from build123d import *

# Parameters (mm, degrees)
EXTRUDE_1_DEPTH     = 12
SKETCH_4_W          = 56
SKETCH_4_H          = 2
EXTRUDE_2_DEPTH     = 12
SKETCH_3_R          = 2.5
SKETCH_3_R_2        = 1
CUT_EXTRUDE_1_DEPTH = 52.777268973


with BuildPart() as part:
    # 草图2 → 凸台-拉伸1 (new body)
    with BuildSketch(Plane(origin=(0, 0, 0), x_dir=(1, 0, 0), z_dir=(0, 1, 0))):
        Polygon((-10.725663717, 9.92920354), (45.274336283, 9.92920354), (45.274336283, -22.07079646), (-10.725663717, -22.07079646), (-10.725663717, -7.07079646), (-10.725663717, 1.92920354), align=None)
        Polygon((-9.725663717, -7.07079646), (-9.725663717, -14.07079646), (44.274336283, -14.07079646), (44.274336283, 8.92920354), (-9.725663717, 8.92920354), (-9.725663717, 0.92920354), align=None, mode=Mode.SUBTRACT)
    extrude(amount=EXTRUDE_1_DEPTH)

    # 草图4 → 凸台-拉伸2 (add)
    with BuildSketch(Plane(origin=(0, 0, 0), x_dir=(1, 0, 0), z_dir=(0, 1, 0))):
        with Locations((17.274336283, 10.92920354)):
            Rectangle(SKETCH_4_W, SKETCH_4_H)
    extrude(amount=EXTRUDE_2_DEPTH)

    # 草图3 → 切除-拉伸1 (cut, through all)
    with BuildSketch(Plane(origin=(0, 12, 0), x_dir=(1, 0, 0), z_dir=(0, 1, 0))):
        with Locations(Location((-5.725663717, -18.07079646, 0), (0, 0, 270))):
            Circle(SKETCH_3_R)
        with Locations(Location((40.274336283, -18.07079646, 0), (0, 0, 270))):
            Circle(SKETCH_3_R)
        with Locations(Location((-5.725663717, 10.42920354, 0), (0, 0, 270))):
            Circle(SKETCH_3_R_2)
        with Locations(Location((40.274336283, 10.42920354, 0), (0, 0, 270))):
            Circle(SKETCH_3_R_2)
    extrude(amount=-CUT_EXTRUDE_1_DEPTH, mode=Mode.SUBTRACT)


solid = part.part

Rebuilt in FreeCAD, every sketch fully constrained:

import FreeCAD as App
import Part
import Sketcher

V = App.Vector

doc = App.newDocument("Part")
body = doc.addObject("PartDesign::Body", "Body")

sketch1 = body.newObject("Sketcher::SketchObject", "Sketch")
sketch1.AttachmentSupport = (doc.getObject("XZ_Plane"), [""])
sketch1.MapMode = "FlatFace"
sketch1.addGeometry(Part.LineSegment(V(45, -10, 0), V(-11, -10, 0)), False)
sketch1.addGeometry(Part.LineSegment(V(-11, -10, 0), V(-11, 22, 0)), False)
sketch1.addGeometry(Part.LineSegment(V(-11, 22, 0), V(45, 22, 0)), False)
sketch1.addGeometry(Part.LineSegment(V(45, 22, 0), V(45, -10, 0)), False)
sketch1.addGeometry(Part.LineSegment(V(-10, -9, 0), V(44, -9, 0)), False)
sketch1.addGeometry(Part.LineSegment(V(44, -9, 0), V(44, 14, 0)), False)
sketch1.addGeometry(Part.LineSegment(V(44, 14, 0), V(-10, 14, 0)), False)
sketch1.addGeometry(Part.LineSegment(V(-10, 14, 0), V(-10, -9, 0)), False)
sketch1.addConstraint(Sketcher.Constraint("Coincident", 0, 2, 1, 1))
sketch1.addConstraint(Sketcher.Constraint("Coincident", 1, 2, 2, 1))
sketch1.addConstraint(Sketcher.Constraint("Coincident", 2, 2, 3, 1))
sketch1.addConstraint(Sketcher.Constraint("Coincident", 3, 2, 0, 1))
sketch1.addConstraint(Sketcher.Constraint("Coincident", 4, 2, 5, 1))
sketch1.addConstraint(Sketcher.Constraint("Coincident", 5, 2, 6, 1))
sketch1.addConstraint(Sketcher.Constraint("Coincident", 6, 2, 7, 1))
sketch1.addConstraint(Sketcher.Constraint("Coincident", 7, 2, 4, 1))
sketch1.addConstraint(Sketcher.Constraint("Horizontal", 0))
sketch1.addConstraint(Sketcher.Constraint("Vertical", 1))
sketch1.addConstraint(Sketcher.Constraint("Horizontal", 2))
sketch1.addConstraint(Sketcher.Constraint("Vertical", 3))
sketch1.addConstraint(Sketcher.Constraint("Horizontal", 4))
sketch1.addConstraint(Sketcher.Constraint("Vertical", 5))
sketch1.addConstraint(Sketcher.Constraint("Horizontal", 6))
sketch1.addConstraint(Sketcher.Constraint("Vertical", 7))
sketch1.addConstraint(Sketcher.Constraint("DistanceX", 0, 2, 0, 1, 56.0))
sketch1.addConstraint(Sketcher.Constraint("DistanceX", 4, 1, 4, 2, 54.0))
sketch1.addConstraint(Sketcher.Constraint("DistanceY", 1, 1, 1, 2, 32.0))
sketch1.addConstraint(Sketcher.Constraint("DistanceY", 5, 1, 5, 2, 23.0))
sketch1.addConstraint(Sketcher.Constraint("DistanceX", 4, 2, 3, 2, 1.0))
sketch1.addConstraint(Sketcher.Constraint("DistanceY", 3, 2, 4, 2, 1.0))
sketch1.addConstraint(Sketcher.Constraint("DistanceX", 0, 2, -1, 1, 10.725664))
sketch1.addConstraint(Sketcher.Constraint("DistanceY", 0, 2, -1, 1, 9.929204))
pad1 = body.newObject("PartDesign::Pad", "Pad")
pad1.Profile = sketch1
pad1.Length = 12
pad1.Reversed = True

sketch2 = body.newObject("Sketcher::SketchObject", "Sketch001")
sketch2.AttachmentSupport = (doc.getObject("XZ_Plane"), [""])
sketch2.MapMode = "FlatFace"
sketch2.addGeometry(Part.LineSegment(V(-10.7, -11.9, 0), V(-10.7, -9.9, 0)), False)
sketch2.addGeometry(Part.LineSegment(V(-10.7, -9.9, 0), V(45.3, -9.9, 0)), False)
sketch2.addGeometry(Part.LineSegment(V(45.3, -9.9, 0), V(45.3, -11.9, 0)), False)
sketch2.addGeometry(Part.LineSegment(V(45.3, -11.9, 0), V(-10.7, -11.9, 0)), False)
sketch2.addConstraint(Sketcher.Constraint("Coincident", 0, 2, 1, 1))
sketch2.addConstraint(Sketcher.Constraint("Coincident", 1, 2, 2, 1))
sketch2.addConstraint(Sketcher.Constraint("Coincident", 2, 2, 3, 1))
sketch2.addConstraint(Sketcher.Constraint("Coincident", 3, 2, 0, 1))
sketch2.addConstraint(Sketcher.Constraint("Vertical", 0))
sketch2.addConstraint(Sketcher.Constraint("Horizontal", 1))
sketch2.addConstraint(Sketcher.Constraint("Vertical", 2))
sketch2.addConstraint(Sketcher.Constraint("Horizontal", 3))
sketch2.addConstraint(Sketcher.Constraint("DistanceX", 1, 1, 1, 2, 56.0))
sketch2.addConstraint(Sketcher.Constraint("DistanceY", 0, 1, 0, 2, 2.0))
sketch2.addConstraint(Sketcher.Constraint("DistanceX", 0, 2, -1, 1, 10.725664))
sketch2.addConstraint(Sketcher.Constraint("DistanceY", 0, 2, -1, 1, 9.929204))
pad2 = body.newObject("PartDesign::Pad", "Pad001")
pad2.Profile = sketch2
pad2.Length = 12
pad2.Reversed = True

sketch3 = body.newObject("Sketcher::SketchObject", "Sketch002")
sketch3.AttachmentSupport = (doc.getObject("XZ_Plane"), [""])
sketch3.MapMode = "FlatFace"
sketch3.AttachmentOffset = App.Placement(V(0, 0, -12), App.Rotation())
sketch3.addGeometry(Part.Circle(V(-5.7, 18.1, 0), V(0, 0, 1), 2.5), False)
sketch3.addGeometry(Part.Circle(V(40.3, 18.1, 0), V(0, 0, 1), 2.5), False)
sketch3.addGeometry(Part.Circle(V(-5.7, -10.4, 0), V(0, 0, 1), 1), False)
sketch3.addGeometry(Part.Circle(V(40.3, -10.4, 0), V(0, 0, 1), 1), False)
sketch3.addConstraint(Sketcher.Constraint("Equal", 0, 1))
sketch3.addConstraint(Sketcher.Constraint("Equal", 2, 3))
sketch3.addConstraint(Sketcher.Constraint("Horizontal", 0, 3, 1, 3))
sketch3.addConstraint(Sketcher.Constraint("Horizontal", 2, 3, 3, 3))
sketch3.addConstraint(Sketcher.Constraint("Vertical", 0, 3, 2, 3))
sketch3.addConstraint(Sketcher.Constraint("Vertical", 1, 3, 3, 3))
sketch3.addConstraint(Sketcher.Constraint("Diameter", 0, 5.0))
sketch3.addConstraint(Sketcher.Constraint("Diameter", 2, 2.0))
sketch3.addConstraint(Sketcher.Constraint("DistanceX", 0, 3, 1, 3, 46.0))
sketch3.addConstraint(Sketcher.Constraint("DistanceY", 2, 3, 0, 3, 28.5))
sketch3.addConstraint(Sketcher.Constraint("DistanceX", 0, 3, -1, 1, 5.725664))
sketch3.addConstraint(Sketcher.Constraint("DistanceY", -1, 1, 0, 3, 18.070796))
pocket1 = body.newObject("PartDesign::Pocket", "Pocket")
pocket1.Profile = sketch3
pocket1.Type = "ThroughAll"
pocket1.Reversed = True

doc.recompute()
